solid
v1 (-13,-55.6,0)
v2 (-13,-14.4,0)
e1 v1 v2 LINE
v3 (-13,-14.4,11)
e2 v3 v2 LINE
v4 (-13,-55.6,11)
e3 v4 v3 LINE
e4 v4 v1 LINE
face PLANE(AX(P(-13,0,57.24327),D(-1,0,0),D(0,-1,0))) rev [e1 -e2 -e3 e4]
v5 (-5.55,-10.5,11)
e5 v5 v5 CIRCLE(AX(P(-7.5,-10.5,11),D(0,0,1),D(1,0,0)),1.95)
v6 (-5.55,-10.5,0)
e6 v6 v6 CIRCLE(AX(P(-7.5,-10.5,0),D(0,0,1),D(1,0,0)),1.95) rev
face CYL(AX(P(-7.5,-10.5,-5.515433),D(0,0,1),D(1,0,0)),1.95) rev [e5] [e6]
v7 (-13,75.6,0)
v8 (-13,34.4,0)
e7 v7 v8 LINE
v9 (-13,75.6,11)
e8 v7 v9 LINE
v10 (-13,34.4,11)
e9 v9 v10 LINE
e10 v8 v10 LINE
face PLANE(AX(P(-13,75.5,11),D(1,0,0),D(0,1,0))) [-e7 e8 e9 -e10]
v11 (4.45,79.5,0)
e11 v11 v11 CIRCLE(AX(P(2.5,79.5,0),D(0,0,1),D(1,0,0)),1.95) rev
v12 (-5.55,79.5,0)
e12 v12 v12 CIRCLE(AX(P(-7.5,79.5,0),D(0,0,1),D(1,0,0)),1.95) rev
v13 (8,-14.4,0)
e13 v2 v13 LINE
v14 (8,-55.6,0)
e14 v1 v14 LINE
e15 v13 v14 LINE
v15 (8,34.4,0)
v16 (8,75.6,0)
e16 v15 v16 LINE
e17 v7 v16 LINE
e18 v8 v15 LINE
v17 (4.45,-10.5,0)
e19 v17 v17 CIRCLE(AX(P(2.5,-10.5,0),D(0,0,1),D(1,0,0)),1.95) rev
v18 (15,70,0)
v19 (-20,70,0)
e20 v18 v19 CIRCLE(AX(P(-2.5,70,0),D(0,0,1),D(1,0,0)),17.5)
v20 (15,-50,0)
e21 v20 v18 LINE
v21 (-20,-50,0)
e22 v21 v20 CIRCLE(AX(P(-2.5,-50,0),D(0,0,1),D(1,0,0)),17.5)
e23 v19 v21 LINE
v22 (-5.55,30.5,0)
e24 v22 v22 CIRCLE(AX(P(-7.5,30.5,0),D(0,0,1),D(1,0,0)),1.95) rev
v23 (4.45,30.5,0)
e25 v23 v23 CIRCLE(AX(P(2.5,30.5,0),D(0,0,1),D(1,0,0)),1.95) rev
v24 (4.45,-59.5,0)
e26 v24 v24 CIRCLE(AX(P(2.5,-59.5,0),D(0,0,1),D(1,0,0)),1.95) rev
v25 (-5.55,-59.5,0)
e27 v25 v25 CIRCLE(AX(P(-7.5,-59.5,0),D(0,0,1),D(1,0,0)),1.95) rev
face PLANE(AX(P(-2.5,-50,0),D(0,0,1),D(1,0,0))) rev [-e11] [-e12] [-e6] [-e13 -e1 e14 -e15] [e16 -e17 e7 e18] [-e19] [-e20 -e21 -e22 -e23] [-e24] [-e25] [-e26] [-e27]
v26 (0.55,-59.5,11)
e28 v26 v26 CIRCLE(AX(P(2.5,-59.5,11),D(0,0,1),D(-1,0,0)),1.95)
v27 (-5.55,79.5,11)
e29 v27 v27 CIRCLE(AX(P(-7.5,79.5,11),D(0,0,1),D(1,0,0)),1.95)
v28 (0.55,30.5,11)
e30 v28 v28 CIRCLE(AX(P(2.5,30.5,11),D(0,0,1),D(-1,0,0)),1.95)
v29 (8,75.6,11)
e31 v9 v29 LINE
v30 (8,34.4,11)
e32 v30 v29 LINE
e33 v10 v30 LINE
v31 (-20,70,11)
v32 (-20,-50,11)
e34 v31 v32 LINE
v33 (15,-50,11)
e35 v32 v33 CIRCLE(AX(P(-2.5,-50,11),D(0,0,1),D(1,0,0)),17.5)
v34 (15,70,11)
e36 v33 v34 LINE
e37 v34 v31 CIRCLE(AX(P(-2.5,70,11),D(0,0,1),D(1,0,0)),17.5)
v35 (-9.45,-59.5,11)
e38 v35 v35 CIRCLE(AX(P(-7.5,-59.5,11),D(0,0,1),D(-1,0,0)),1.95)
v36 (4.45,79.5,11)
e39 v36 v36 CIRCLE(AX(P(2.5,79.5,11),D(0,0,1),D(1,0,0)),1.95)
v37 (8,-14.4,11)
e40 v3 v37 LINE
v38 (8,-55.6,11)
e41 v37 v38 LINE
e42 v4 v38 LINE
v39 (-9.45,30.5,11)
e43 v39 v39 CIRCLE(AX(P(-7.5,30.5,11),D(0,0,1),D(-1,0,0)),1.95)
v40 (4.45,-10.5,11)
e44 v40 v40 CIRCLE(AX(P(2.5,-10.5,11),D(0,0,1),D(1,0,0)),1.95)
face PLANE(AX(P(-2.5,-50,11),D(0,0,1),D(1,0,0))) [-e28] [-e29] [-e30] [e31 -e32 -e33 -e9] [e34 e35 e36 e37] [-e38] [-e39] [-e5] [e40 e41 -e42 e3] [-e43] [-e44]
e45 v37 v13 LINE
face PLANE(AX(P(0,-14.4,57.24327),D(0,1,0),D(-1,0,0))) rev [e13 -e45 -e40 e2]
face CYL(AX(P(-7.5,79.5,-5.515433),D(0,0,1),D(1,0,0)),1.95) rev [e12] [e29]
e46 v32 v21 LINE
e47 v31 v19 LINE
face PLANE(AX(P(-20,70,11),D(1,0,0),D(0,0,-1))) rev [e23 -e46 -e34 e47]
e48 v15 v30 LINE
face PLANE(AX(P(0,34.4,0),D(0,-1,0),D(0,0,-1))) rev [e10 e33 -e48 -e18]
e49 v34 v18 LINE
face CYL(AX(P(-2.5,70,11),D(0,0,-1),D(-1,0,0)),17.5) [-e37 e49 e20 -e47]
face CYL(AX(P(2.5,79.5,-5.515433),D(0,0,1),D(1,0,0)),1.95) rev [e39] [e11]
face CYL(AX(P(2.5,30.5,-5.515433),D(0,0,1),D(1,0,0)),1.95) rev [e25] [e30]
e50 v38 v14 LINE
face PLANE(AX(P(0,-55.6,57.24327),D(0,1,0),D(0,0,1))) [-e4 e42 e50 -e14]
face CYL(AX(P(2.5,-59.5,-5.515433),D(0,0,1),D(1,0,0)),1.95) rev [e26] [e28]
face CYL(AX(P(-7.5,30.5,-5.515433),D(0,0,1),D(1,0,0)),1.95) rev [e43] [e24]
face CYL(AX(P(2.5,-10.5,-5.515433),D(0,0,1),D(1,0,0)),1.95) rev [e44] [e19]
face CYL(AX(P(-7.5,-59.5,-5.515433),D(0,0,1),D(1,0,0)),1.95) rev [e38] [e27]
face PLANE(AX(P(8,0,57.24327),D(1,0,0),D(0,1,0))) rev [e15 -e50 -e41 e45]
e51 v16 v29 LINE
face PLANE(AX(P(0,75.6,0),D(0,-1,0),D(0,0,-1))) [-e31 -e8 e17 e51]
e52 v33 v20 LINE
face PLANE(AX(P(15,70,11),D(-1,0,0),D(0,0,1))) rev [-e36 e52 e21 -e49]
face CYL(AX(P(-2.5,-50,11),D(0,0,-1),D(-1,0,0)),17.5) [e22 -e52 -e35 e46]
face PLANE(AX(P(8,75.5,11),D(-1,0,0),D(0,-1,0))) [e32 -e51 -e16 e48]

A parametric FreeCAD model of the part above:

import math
import FreeCAD as App
import Part
import Sketcher
from FreeCAD import Vector

doc = App.newDocument("Part")
params = doc.addObject("Spreadsheet::Sheet", "Params")
for row, (alias, value) in enumerate([
    ("sketch1_diameter", "3.2 mm"),
    ("sketch1_radius", "17.5 mm"),
    ("sketch1_width", "21 mm"),
    ("sketch1_height", "120 mm"),
    ("sketch1_height2", "41 mm"),
    ("pad1_length", "11 mm"),
    ("sketch2_width", "21 mm"),
    ("sketch2_height", "0.1 mm"),
    ("sketch3_diameter", "3.2 mm"),
    ("sketch3_width", "21 mm"),
    ("sketch3_height", "41.2 mm"),
    ("pocket2_length", "11 mm"),
    ("sketch4_diameter", "3.9 mm"),
    ("pocket3_length", "11 mm"),
], start=1):
    params.set(f"A{row}", alias)
    params.set(f"B{row}", "=" + value)
    params.setAlias(f"B{row}", alias)

body = doc.addObject("PartDesign::Body", "Body")

# Sketch on XY plane
sketch1 = doc.addObject("Sketcher::SketchObject", "Sketch")
body.addObject(sketch1)
sketch1.AttachmentSupport = (doc.XY_Plane, [""])
sketch1.MapMode = "FlatFace"
sketch1.addGeometry([
    Part.LineSegment(Vector(-20, 70, 0), Vector(-20, -50, 0)),  # 0
    Part.ArcOfCircle(Part.Circle(Vector(-2.5, -50, 0), Vector(0, 0, 1), 17.5), math.radians(180), math.radians(360)),  # 1
    Part.LineSegment(Vector(15, -50, 0), Vector(15, 70, 0)),  # 2
    Part.ArcOfCircle(Part.Circle(Vector(-2.5, 70, 0), Vector(0, 0, 1), 17.5), math.radians(0), math.radians(180)),  # 3
    Part.Circle(Vector(-7.5, 30.5, 0), Vector(0, 0, 1), 1.6),  # 4
    Part.Circle(Vector(2.5, 30.5, 0), Vector(0, 0, 1), 1.6),  # 5
    Part.Circle(Vector(-7.5, 79.5, 0), Vector(0, 0, 1), 1.6),  # 6
    Part.LineSegment(Vector(8, 34.5, 0), Vector(-13, 34.5, 0)),  # 7
    Part.LineSegment(Vector(-13, 34.5, 0), Vector(-13, 75.5, 0)),  # 8
    Part.LineSegment(Vector(-13, 75.5, 0), Vector(8, 75.5, 0)),  # 9
    Part.LineSegment(Vector(8, 75.5, 0), Vector(8, 34.5, 0)),  # 10
    Part.Circle(Vector(2.5, 79.5, 0), Vector(0, 0, 1), 1.6),  # 11
], False)
sketch1.addConstraint([
    Sketcher.Constraint("Tangent", 0, 2, 1, 1),
    Sketcher.Constraint("Tangent", 1, 2, 2, 1),
    Sketcher.Constraint("Tangent", 2, 2, 3, 1),
    Sketcher.Constraint("Tangent", 3, 2, 0, 1),
    Sketcher.Constraint("Coincident", 7, 2, 8, 1),
    Sketcher.Constraint("Coincident", 8, 2, 9, 1),
    Sketcher.Constraint("Coincident", 9, 2, 10, 1),
    Sketcher.Constraint("Coincident", 10, 2, 7, 1),
    Sketcher.Constraint("Vertical", 0),
    Sketcher.Constraint("Vertical", 2),
    Sketcher.Constraint("Horizontal", 7),
    Sketcher.Constraint("Vertical", 8),
    Sketcher.Constraint("Horizontal", 9),
    Sketcher.Constraint("Vertical", 10),
    Sketcher.Constraint("Equal", 4, 5),
    Sketcher.Constraint("Equal", 5, 6),
    Sketcher.Constraint("Equal", 6, 11),
    Sketcher.Constraint("Horizontal", 4, 3, 5, 3),
    Sketcher.Constraint("Horizontal", 6, 3, 11, 3),
    Sketcher.Constraint("Vertical", 4, 3, 6, 3),
    Sketcher.Constraint("Vertical", 5, 3, 11, 3),
    Sketcher.Constraint("Diameter", 4, 3.2),
    Sketcher.Constraint("Radius", 1, 17.5),
    Sketcher.Constraint("DistanceX", 7, 2, 7, 1, 21.0),
    Sketcher.Constraint("DistanceY", 0, 2, 0, 1, 120.0),
    Sketcher.Constraint("DistanceY", 8, 1, 8, 2, 41.0),
    Sketcher.Constraint("DistanceY", 1, 3, -1, 1, 50.0),
    Sketcher.Constraint("DistanceX", 0, 2, -1, 1, 20.0),
    Sketcher.Constraint("DistanceX", 7, 2, -1, 1, 13.0),
    Sketcher.Constraint("DistanceX", 4, 3, 3, 3, 5.0),
    Sketcher.Constraint("DistanceX", 4, 3, 5, 3, 10.0),
    Sketcher.Constraint("DistanceY", 4, 3, 6, 3, 49.0),
    Sketcher.Constraint("DistanceY", 4, 3, 7, 2, 4.0),
    Sketcher.Constraint("DistanceY", -1, 1, 4, 3, 30.5),
])
sketch1.setExpression("Constraints[21]", "Params.sketch1_diameter")
sketch1.setExpression("Constraints[22]", "Params.sketch1_radius")
sketch1.setExpression("Constraints[23]", "Params.sketch1_width")
sketch1.setExpression("Constraints[24]", "Params.sketch1_height")
sketch1.setExpression("Constraints[25]", "Params.sketch1_height2")
pad1 = doc.addObject("PartDesign::Pad", "Pad")
body.addObject(pad1)
pad1.Profile = sketch1
pad1.setExpression("Length", "Params.pad1_length")

# Sketch on XY plane
sketch2 = doc.addObject("Sketcher::SketchObject", "Sketch001")
body.addObject(sketch2)
sketch2.AttachmentSupport = (doc.XY_Plane, [""])
sketch2.MapMode = "FlatFace"
sketch2.AttachmentOffset = App.Placement(Vector(0, 0, 11), App.Rotation())
sketch2.addGeometry([
    Part.LineSegment(Vector(-13, 75.6, 0), Vector(-13, 75.5, 0)),  # 0
    Part.LineSegment(Vector(-13, 75.5, 0), Vector(8, 75.5, 0)),  # 1
    Part.LineSegment(Vector(8, 75.5, 0), Vector(8, 75.6, 0)),  # 2
    Part.LineSegment(Vector(8, 75.6, 0), Vector(-13, 75.6, 0)),  # 3
    Part.LineSegment(Vector(-13, 34.5, 0), Vector(-13, 34.4, 0)),  # 4
    Part.LineSegment(Vector(-13, 34.4, 0), Vector(8, 34.4, 0)),  # 5
    Part.LineSegment(Vector(8, 34.4, 0), Vector(8, 34.5, 0)),  # 6
    Part.LineSegment(Vector(8, 34.5, 0), Vector(-13, 34.5, 0)),  # 7
], False)
sketch2.addConstraint([
    Sketcher.Constraint("Coincident", 0, 2, 1, 1),
    Sketcher.Constraint("Coincident", 1, 2, 2, 1),
    Sketcher.Constraint("Coincident", 2, 2, 3, 1),
    Sketcher.Constraint("Coincident", 3, 2, 0, 1),
    Sketcher.Constraint("Coincident", 4, 2, 5, 1),
    Sketcher.Constraint("Coincident", 5, 2, 6, 1),
    Sketcher.Constraint("Coincident", 6, 2, 7, 1),
    Sketcher.Constraint("Coincident", 7, 2, 4, 1),
    Sketcher.Constraint("Vertical", 0),
    Sketcher.Constraint("Horizontal", 1),
    Sketcher.Constraint("Vertical", 2),
    Sketcher.Constraint("Horizontal", 3),
    Sketcher.Constraint("Vertical", 4),
    Sketcher.Constraint("Horizontal", 5),
    Sketcher.Constraint("Vertical", 6),
    Sketcher.Constraint("Horizontal", 7),
    Sketcher.Constraint("Vertical", 3, 2, 4, 2),
    Sketcher.Constraint("Vertical", 2, 2, 5, 2),
    Sketcher.Constraint("Equal", 2, 4),
    Sketcher.Constraint("DistanceX", 1, 1, 1, 2, 21.0),
    Sketcher.Constraint("DistanceY", 0, 2, 0, 1, 0.1),
    Sketcher.Constraint("DistanceX", 0, 2, -1, 1, 13.0),
    Sketcher.Constraint("DistanceY", 6, 2, 1, 2, 41.0),
    Sketcher.Constraint("DistanceY", -1, 1, 0, 2, 75.5),
])
sketch2.setExpression("Constraints[19]", "Params.sketch2_width")
sketch2.setExpression("Constraints[20]", "Params.sketch2_height")
pocket1 = doc.addObject("PartDesign::Pocket", "Pocket")
body.addObject(pocket1)
pocket1.Profile = sketch2
pocket1.Type = "ThroughAll"

# Sketch on XY plane
sketch3 = doc.addObject("Sketcher::SketchObject", "Sketch002")
body.addObject(sketch3)
sketch3.AttachmentSupport = (doc.XY_Plane, [""])
sketch3.MapMode = "FlatFace"
sketch3.addGeometry([
    Part.LineSegment(Vector(8, -14.4, 0), Vector(8, -55.6, 0)),  # 0
    Part.LineSegment(Vector(8, -55.6, 0), Vector(-13, -55.6, 0)),  # 1
    Part.LineSegment(Vector(-13, -55.6, 0), Vector(-13, -14.4, 0)),  # 2
    Part.LineSegment(Vector(-13, -14.4, 0), Vector(8, -14.4, 0)),  # 3
    Part.Circle(Vector(2.5, -10.5, 0), Vector(0, 0, 1), 1.6),  # 4
    Part.Circle(Vector(-7.5, -10.5, 0), Vector(0, 0, 1), 1.6),  # 5
    Part.Circle(Vector(2.5, -59.5, 0), Vector(0, 0, 1), 1.6),  # 6
    Part.Circle(Vector(-7.5, -59.5, 0), Vector(0, 0, 1), 1.6),  # 7
], False)
sketch3.addConstraint([
    Sketcher.Constraint("Coincident", 0, 2, 1, 1),
    Sketcher.Constraint("Coincident", 1, 2, 2, 1),
    Sketcher.Constraint("Coincident", 2, 2, 3, 1),
    Sketcher.Constraint("Coincident", 3, 2, 0, 1),
    Sketcher.Constraint("Vertical", 0),
    Sketcher.Constraint("Horizontal", 1),
    Sketcher.Constraint("Vertical", 2),
    Sketcher.Constraint("Horizontal", 3),
    Sketcher.Constraint("Equal", 4, 5),
    Sketcher.Constraint("Equal", 5, 6),
    Sketcher.Constraint("Equal", 6, 7),
    Sketcher.Constraint("Horizontal", 4, 3, 5, 3),
    Sketcher.Constraint("Horizontal", 6, 3, 7, 3),
    Sketcher.Constraint("Vertical", 4, 3, 6, 3),
    Sketcher.Constraint("Vertical", 5, 3, 7, 3),
    Sketcher.Constraint("Diameter", 4, 3.2),
    Sketcher.Constraint("DistanceX", 1, 2, 1, 1, 21.0),
    Sketcher.Constraint("DistanceY", 0, 2, 0, 1, 41.2),
    Sketcher.Constraint("DistanceX", -1, 1, 0, 2, 8.0),
    Sketcher.Constraint("DistanceX", 5, 3, 4, 3, 10.0),
    Sketcher.Constraint("DistanceY", 6, 3, 4, 3, 49.0),
    Sketcher.Constraint("DistanceX", -1, 1, 4, 3, 2.5),
    Sketcher.Constraint("DistanceY", 4, 3, -1, 1, 10.5),
    Sketcher.Constraint("DistanceY", 0, 2, -1, 1, 55.6),
])
sketch3.setExpression("Constraints[15]", "Params.sketch3_diameter")
sketch3.setExpression("Constraints[16]", "Params.sketch3_width")
sketch3.setExpression("Constraints[17]", "Params.sketch3_height")
pocket2 = doc.addObject("PartDesign::Pocket", "Pocket001")
body.addObject(pocket2)
pocket2.Profile = sketch3
pocket2.setExpression("Length", "Params.pocket2_length")
pocket2.Reversed = True

# Sketch on XY plane
sketch4 = doc.addObject("Sketcher::SketchObject", "Sketch003")
body.addObject(sketch4)
sketch4.AttachmentSupport = (doc.XY_Plane, [""])
sketch4.MapMode = "FlatFace"
sketch4.AttachmentOffset = App.Placement(Vector(0, 0, 11), App.Rotation())
sketch4.addGeometry([
    Part.Circle(Vector(-7.5, 79.5, 0), Vector(0, 0, 1), 1.9),  # 0
    Part.Circle(Vector(2.5, 79.5, 0), Vector(0, 0, 1), 1.9),  # 1
    Part.Circle(Vector(2.5, 30.5, 0), Vector(0, 0, 1), 1.9),  # 2
    Part.Circle(Vector(-7.5, 30.5, 0), Vector(0, 0, 1), 1.9),  # 3
    Part.Circle(Vector(2.5, -10.5, 0), Vector(0, 0, 1), 1.9),  # 4
    Part.Circle(Vector(-7.5, -10.5, 0), Vector(0, 0, 1), 1.9),  # 5
    Part.Circle(Vector(2.5, -59.5, 0), Vector(0, 0, 1), 1.9),  # 6
    Part.Circle(Vector(-7.5, -59.5, 0), Vector(0, 0, 1), 1.9),  # 7
], False)
sketch4.addConstraint([
    Sketcher.Constraint("Equal", 0, 1),
    Sketcher.Constraint("Equal", 1, 2),
    Sketcher.Constraint("Equal", 2, 3),
    Sketcher.Constraint("Equal", 3, 4),
    Sketcher.Constraint("Equal", 4, 5),
    Sketcher.Constraint("Equal", 5, 6),
    Sketcher.Constraint("Equal", 6, 7),
    Sketcher.Constraint("Horizontal", 0, 3, 1, 3),
    Sketcher.Constraint("Horizontal", 2, 3, 3, 3),
    Sketcher.Constraint("Horizontal", 4, 3, 5, 3),
    Sketcher.Constraint("Horizontal", 6, 3, 7, 3),
    Sketcher.Constraint("Vertical", 1, 3, 2, 3),
    Sketcher.Constraint("Vertical", 0, 3, 3, 3),
    Sketcher.Constraint("Vertical", 2, 3, 4, 3),
    Sketcher.Constraint("Vertical", 3, 3, 5, 3),
    Sketcher.Constraint("Vertical", 4, 3, 6, 3),
    Sketcher.Constraint("Vertical", 5, 3, 7, 3),
    Sketcher.Constraint("Diameter", 0, 3.9),
    Sketcher.Constraint("DistanceX", 0, 3, 1, 3, 10.0),
    Sketcher.Constraint("DistanceY", 2, 3, 1, 3, 49.0),
    Sketcher.Constraint("DistanceY", 4, 3, 2, 3, 41.0),
    Sketcher.Constraint("DistanceY", 6, 3, 4, 3, 49.0),
    Sketcher.Constraint("DistanceX", 0, 3, -1, 1, 7.5),
    Sketcher.Constraint("DistanceY", -1, 1, 0, 3, 79.5),
])
sketch4.setExpression("Constraints[17]", "Params.sketch4_diameter")
pocket3 = doc.addObject("PartDesign::Pocket", "Pocket002")
body.addObject(pocket3)
pocket3.Profile = sketch4
pocket3.setExpression("Length", "Params.pocket3_length")

doc.recompute()
